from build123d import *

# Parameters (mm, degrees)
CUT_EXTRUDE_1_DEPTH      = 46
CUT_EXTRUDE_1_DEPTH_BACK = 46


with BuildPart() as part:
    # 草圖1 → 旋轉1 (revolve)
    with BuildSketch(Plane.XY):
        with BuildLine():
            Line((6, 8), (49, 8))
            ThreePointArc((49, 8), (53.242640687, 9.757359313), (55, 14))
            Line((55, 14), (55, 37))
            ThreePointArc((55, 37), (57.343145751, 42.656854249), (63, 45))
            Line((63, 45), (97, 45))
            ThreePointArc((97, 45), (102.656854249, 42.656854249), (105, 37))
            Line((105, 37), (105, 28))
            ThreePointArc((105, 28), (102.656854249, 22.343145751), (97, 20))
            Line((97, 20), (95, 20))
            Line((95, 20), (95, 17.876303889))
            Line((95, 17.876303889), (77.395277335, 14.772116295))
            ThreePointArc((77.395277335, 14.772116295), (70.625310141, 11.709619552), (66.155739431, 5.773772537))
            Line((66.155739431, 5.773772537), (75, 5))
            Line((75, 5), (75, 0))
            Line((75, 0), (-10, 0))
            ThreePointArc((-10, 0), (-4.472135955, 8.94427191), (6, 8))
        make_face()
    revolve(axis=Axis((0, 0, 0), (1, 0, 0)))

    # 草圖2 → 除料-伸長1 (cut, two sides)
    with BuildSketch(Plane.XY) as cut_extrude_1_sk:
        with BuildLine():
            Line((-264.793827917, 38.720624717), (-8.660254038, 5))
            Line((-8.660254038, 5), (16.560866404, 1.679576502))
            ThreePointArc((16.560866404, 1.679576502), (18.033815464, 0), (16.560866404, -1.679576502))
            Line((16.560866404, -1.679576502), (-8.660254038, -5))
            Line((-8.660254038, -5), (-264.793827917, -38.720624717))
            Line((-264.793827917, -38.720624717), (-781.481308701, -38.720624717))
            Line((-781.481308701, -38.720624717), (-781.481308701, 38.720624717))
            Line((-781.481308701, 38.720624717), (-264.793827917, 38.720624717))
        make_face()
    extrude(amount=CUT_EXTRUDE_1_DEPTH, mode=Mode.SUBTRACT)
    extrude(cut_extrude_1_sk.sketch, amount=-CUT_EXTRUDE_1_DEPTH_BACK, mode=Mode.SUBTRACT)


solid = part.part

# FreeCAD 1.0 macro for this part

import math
import FreeCAD as App
import Part
import Sketcher

V = App.Vector
Q = App.Units.Quantity

doc = App.newDocument("Part")
body = doc.addObject("PartDesign::Body", "Body")

# Sketch on XY plane
sketch1 = body.newObject("Sketcher::SketchObject", "Sketch")
sketch1.AttachmentSupport = (doc.getObject("XY_Plane"), [""])
sketch1.MapMode = "FlatFace"
sketch1.addGeometry(Part.LineSegment(V(49, 8, 0), V(6, 8, 0)), False)
sketch1.addGeometry(Part.ArcOfCircle(Part.Circle(V(0, 0, 0), V(0, 0, 1), 10), math.radians(53), math.radians(180)), False)
sketch1.addGeometry(Part.LineSegment(V(-10, 0, 0), V(75, 0, 0)), False)
sketch1.addGeometry(Part.LineSegment(V(75, 0, 0), V(75, 5, 0)), False)
sketch1.addGeometry(Part.LineSegment(V(75, 5, 0), V(66.2, 5.8, 0)), False)
sketch1.addGeometry(Part.ArcOfCircle(Part.Circle(V(80, 0, 0), V(0, 0, 1), 15), math.radians(100), math.radians(157)), False)
sketch1.addGeometry(Part.LineSegment(V(77.4, 14.8, 0), V(95, 17.9, 0)), False)
sketch1.addGeometry(Part.LineSegment(V(95, 17.9, 0), V(95, 20, 0)), False)
sketch1.addGeometry(Part.LineSegment(V(95, 20, 0), V(97, 20, 0)), False)
sketch1.addGeometry(Part.ArcOfCircle(Part.Circle(V(97, 28, 0), V(0, 0, 1), 8), math.radians(-90), math.radians(0)), False)
sketch1.addGeometry(Part.LineSegment(V(105, 28, 0), V(105, 37, 0)), False)
sketch1.addGeometry(Part.ArcOfCircle(Part.Circle(V(97, 37, 0), V(0, 0, 1), 8), math.radians(0), math.radians(90)), False)
sketch1.addGeometry(Part.LineSegment(V(97, 45, 0), V(63, 45, 0)), False)
sketch1.addGeometry(Part.ArcOfCircle(Part.Circle(V(63, 37, 0), V(0, 0, 1), 8), math.radians(90), math.radians(180)), False)
sketch1.addGeometry(Part.LineSegment(V(55, 37, 0), V(55, 14, 0)), False)
sketch1.addGeometry(Part.ArcOfCircle(Part.Circle(V(49, 14, 0), V(0, 0, 1), 6), math.radians(-90), math.radians(0)), False)
sketch1.addConstraint(Sketcher.Constraint("Coincident", 0, 2, 1, 1))
sketch1.addConstraint(Sketcher.Constraint("Coincident", 1, 2, 2, 1))
sketch1.addConstraint(Sketcher.Constraint("Coincident", 2, 2, 3, 1))
sketch1.addConstraint(Sketcher.Constraint("Coincident", 3, 2, 4, 1))
sketch1.addConstraint(Sketcher.Constraint("Coincident", 4, 2, 5, 2))
sketch1.addConstraint(Sketcher.Constraint("Tangent", 5, 1, 6, 1))
sketch1.addConstraint(Sketcher.Constraint("Coincident", 6, 2, 7, 1))
sketch1.addConstraint(Sketcher.Constraint("Coincident", 7, 2, 8, 1))
sketch1.addConstraint(Sketcher.Constraint("Tangent", 8, 2, 9, 1))
sketch1.addConstraint(Sketcher.Constraint("Tangent", 9, 2, 10, 1))
sketch1.addConstraint(Sketcher.Constraint("Tangent", 10, 2, 11, 1))
sketch1.addConstraint(Sketcher.Constraint("Tangent", 11, 2, 12, 1))
sketch1.addConstraint(Sketcher.Constraint("Tangent", 12, 2, 13, 1))
sketch1.addConstraint(Sketcher.Constraint("Tangent", 13, 2, 14, 1))
sketch1.addConstraint(Sketcher.Constraint("Tangent", 14, 2, 15, 2))
sketch1.addConstraint(Sketcher.Constraint("Tangent", 15, 1, 0, 1))
sketch1.addConstraint(Sketcher.Constraint("Horizontal", 0))
sketch1.addConstraint(Sketcher.Constraint("Horizontal", 2))
sketch1.addConstraint(Sketcher.Constraint("Vertical", 3))
sketch1.addConstraint(Sketcher.Constraint("Vertical", 7))
sketch1.addConstraint(Sketcher.Constraint("Horizontal", 8))
sketch1.addConstraint(Sketcher.Constraint("Vertical", 10))
sketch1.addConstraint(Sketcher.Constraint("Horizontal", 12))
sketch1.addConstraint(Sketcher.Constraint("Vertical", 14))
sketch1.addConstraint(Sketcher.Constraint("Coincident", 1, 3, -1, 1))
sketch1.addConstraint(Sketcher.Constraint("Equal", 9, 11))
sketch1.addConstraint(Sketcher.Constraint("Equal", 11, 13))
sketch1.addConstraint(Sketcher.Constraint("PointOnObject", 5, 3, -1))
sketch1.addConstraint(Sketcher.Constraint("PointOnObject", 1, 2, -1))
sketch1.addConstraint(Sketcher.Constraint("Radius", 1, 10.0))
sketch1.addConstraint(Sketcher.Constraint("Radius", 5, 15.0))
sketch1.addConstraint(Sketcher.Constraint("Radius", 9, 8.0))
sketch1.addConstraint(Sketcher.Constraint("Radius", 15, 6.0))
sketch1.addConstraint(Sketcher.Constraint("DistanceX", 0, 2, 0, 1, 43.0))
sketch1.addConstraint(Sketcher.Constraint("DistanceX", 2, 1, 2, 2, 85.0))
sketch1.addConstraint(Sketcher.Constraint("DistanceX", 8, 1, 8, 2, 2.0))
sketch1.addConstraint(Sketcher.Constraint("DistanceX", 12, 2, 12, 1, 34.0))
sketch1.addConstraint(Sketcher.Constraint("DistanceY", 3, 1, 3, 2, 5.0))
sketch1.addConstraint(Sketcher.Constraint("DistanceY", 10, 1, 10, 2, 9.0))
sketch1.addConstraint(Sketcher.Constraint("DistanceY", 14, 2, 14, 1, 23.0))
sketch1.addConstraint(Sketcher.Constraint("Angle", 4, Q("175 deg")))
sketch1.addConstraint(Sketcher.Constraint("Angle", 6, Q("10 deg")))
sketch1.addConstraint(Sketcher.Constraint("DistanceX", -1, 1, 5, 3, 80.0))
sketch1.addConstraint(Sketcher.Constraint("DistanceX", -1, 1, 9, 3, 97.0))
revolution = body.newObject("PartDesign::Revolution", "Revolution")
revolution.Profile = sketch1
revolution.ReferenceAxis = (sketch1, ["H_Axis"])
revolution.Angle = 360

# Sketch on XY plane
sketch2 = body.newObject("Sketcher::SketchObject", "Sketch001")
sketch2.AttachmentSupport = (doc.getObject("XY_Plane"), [""])
sketch2.MapMode = "FlatFace"
sketch2.addGeometry(Part.LineSegment(V(-8.7, 5, 0), V(-264.8, 38.7, 0)), False)
sketch2.addGeometry(Part.LineSegment(V(-264.8, 38.7, 0), V(-781.5, 38.7, 0)), False)
sketch2.addGeometry(Part.LineSegment(V(-781.5, 38.7, 0), V(-781.5, -38.7, 0)), False)
sketch2.addGeometry(Part.LineSegment(V(-781.5, -38.7, 0), V(-264.8, -38.7, 0)), False)
sketch2.addGeometry(Part.LineSegment(V(-264.8, -38.7, 0), V(-8.7, -5, 0)), False)
sketch2.addGeometry(Part.LineSegment(V(-8.7, -5, 0), V(16.6, -1.7, 0)), False)
sketch2.addGeometry(Part.ArcOfCircle(Part.Circle(V(16.3, 0, 0), V(0, 0, 1), 1.7), math.radians(-83), math.radians(83)), False)
sketch2.addGeometry(Part.LineSegment(V(16.6, 1.7, 0), V(-8.7, 5, 0)), False)
sketch2.addConstraint(Sketcher.Constraint("Coincident", 0, 2, 1, 1))
sketch2.addConstraint(Sketcher.Constraint("Coincident", 1, 2, 2, 1))
sketch2.addConstraint(Sketcher.Constraint("Coincident", 2, 2, 3, 1))
sketch2.addConstraint(Sketcher.Constraint("Coincident", 3, 2, 4, 1))
sketch2.addConstraint(Sketcher.Constraint("Coincident", 4, 2, 5, 1))
sketch2.addConstraint(Sketcher.Constraint("Tangent", 5, 2, 6, 1))
sketch2.addConstraint(Sketcher.Constraint("Tangent", 6, 2, 7, 1))
sketch2.addConstraint(Sketcher.Constraint("Coincident", 7, 2, 0, 1))
sketch2.addConstraint(Sketcher.Constraint("Horizontal", 1))
sketch2.addConstraint(Sketcher.Constraint("Vertical", 2))
sketch2.addConstraint(Sketcher.Constraint("Horizontal", 3))
sketch2.addConstraint(Sketcher.Constraint("Symmetric", 0, 2, 3, 2, -1))
sketch2.addConstraint(Sketcher.Constraint("Symmetric", 5, 2, 6, 2, -1))
sketch2.addConstraint(Sketcher.Constraint("Parallel", 4, 5))
sketch2.addConstraint(Sketcher.Constraint("Vertical", 4, 2, 7, 2))
sketch2.addConstraint(Sketcher.Constraint("DistanceY", 4, 2, -1, 1, 5.0))
sketch2.addConstraint(Sketcher.Constraint("Angle", 0, Q("172.5 deg")))
sketch2.addConstraint(Sketcher.Constraint("DistanceX", 4, 2, 6, 3, 25.0))
sketch2.addConstraint(Sketcher.Constraint("DistanceX", 1, 2, 1, 1, 516.687481))
sketch2.addConstraint(Sketcher.Constraint("DistanceY", 2, 2, 2, 1, 77.441249))
sketch2.addConstraint(Sketcher.Constraint("DistanceX", 1, 2, -1, 1, 781.481309))
pocket1 = body.newObject("PartDesign::Pocket", "Pocket")
pocket1.Profile = sketch2
pocket1.Type = "ThroughAll"
pocket1.Midplane = True

doc.recompute()
